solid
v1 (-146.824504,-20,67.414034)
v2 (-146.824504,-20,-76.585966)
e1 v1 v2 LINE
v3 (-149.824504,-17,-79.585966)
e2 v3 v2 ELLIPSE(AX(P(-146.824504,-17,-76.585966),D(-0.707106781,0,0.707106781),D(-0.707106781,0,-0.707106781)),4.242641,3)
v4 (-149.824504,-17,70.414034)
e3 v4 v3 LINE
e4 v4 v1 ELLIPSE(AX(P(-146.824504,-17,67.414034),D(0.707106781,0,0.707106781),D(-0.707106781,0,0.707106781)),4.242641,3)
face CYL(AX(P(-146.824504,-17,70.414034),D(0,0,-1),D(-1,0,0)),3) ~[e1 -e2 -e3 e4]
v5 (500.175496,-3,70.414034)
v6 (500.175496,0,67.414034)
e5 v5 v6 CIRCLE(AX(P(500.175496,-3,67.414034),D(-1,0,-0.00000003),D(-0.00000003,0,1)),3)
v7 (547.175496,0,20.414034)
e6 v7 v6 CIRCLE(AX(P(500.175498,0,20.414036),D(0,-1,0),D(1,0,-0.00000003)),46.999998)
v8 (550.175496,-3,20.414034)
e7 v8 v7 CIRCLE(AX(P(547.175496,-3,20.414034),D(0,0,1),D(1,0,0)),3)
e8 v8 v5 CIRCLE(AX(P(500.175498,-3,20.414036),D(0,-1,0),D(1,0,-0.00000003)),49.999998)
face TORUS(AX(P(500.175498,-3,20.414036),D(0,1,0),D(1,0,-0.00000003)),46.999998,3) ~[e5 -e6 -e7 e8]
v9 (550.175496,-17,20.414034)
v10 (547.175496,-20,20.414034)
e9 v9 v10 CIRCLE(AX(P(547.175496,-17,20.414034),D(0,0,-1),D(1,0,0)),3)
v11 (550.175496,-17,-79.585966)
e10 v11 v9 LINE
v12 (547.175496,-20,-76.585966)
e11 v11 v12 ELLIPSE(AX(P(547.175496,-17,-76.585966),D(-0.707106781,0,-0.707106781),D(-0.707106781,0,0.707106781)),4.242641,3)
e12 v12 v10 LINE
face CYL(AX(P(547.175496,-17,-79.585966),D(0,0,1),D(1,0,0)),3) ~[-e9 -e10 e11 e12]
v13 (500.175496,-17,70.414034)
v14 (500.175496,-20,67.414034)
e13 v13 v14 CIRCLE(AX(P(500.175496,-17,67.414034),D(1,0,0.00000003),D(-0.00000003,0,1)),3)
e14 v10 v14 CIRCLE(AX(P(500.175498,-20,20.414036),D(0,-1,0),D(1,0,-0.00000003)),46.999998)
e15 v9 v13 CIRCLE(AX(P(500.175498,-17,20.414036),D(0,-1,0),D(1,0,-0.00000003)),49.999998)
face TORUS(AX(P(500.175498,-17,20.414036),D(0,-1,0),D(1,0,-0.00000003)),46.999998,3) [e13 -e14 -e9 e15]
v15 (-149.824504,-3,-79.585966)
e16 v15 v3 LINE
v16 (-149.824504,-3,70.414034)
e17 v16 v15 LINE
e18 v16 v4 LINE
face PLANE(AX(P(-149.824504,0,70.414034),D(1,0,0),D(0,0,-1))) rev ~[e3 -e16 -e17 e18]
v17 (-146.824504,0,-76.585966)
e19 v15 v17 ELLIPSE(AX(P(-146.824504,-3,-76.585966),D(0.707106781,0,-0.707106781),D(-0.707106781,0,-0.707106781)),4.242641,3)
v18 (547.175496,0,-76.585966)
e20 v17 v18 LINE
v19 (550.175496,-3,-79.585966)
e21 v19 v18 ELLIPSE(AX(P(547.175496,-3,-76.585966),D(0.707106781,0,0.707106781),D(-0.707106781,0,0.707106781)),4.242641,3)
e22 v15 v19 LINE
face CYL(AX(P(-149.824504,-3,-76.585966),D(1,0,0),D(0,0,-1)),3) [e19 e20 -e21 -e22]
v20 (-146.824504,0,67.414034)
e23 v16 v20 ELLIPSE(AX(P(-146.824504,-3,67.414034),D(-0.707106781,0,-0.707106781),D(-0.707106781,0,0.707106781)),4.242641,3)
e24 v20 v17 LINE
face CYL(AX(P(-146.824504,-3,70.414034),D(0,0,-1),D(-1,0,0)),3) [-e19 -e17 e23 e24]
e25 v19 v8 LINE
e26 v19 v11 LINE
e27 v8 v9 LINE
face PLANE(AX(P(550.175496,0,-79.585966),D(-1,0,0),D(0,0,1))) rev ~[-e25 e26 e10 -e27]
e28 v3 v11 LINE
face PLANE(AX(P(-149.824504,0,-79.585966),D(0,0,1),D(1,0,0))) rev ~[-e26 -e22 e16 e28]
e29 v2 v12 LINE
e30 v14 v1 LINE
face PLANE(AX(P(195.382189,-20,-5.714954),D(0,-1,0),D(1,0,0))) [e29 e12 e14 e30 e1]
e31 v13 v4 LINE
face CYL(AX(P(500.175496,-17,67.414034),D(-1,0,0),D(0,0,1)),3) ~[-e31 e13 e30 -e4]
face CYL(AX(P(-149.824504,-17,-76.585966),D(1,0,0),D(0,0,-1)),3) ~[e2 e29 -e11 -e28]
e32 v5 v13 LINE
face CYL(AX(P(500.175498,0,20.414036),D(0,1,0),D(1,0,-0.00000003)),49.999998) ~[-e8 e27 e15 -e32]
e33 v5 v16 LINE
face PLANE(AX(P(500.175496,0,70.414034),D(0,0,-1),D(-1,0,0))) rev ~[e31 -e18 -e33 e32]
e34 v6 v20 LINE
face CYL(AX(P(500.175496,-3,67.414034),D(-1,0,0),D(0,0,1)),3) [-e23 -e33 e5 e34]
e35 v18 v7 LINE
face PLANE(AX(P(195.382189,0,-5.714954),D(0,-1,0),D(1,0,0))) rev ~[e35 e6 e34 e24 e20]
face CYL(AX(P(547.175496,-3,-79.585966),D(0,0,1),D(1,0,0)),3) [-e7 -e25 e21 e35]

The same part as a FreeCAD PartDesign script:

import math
import FreeCAD as App
import Part
import Sketcher


def edges_at(feature, points):
    """Names of the edges that pass closest to the given points."""
    edges = feature.Shape.Edges
    near = lambda p: min(range(len(edges)), key=lambda i: edges[i].distToShape(Part.Vertex(*p))[0])
    return sorted({f"Edge{near(p) + 1}" for p in points})

doc = App.newDocument("Part")
body = doc.addObject("PartDesign::Body", "Body")

sketch1 = doc.addObject("Sketcher::SketchObject", "Sketch")
body.addObject(sketch1)
sketch1.AttachmentSupport = (doc.XZ_Plane, [""])
sketch1.MapMode = "FlatFace"
sketch1.addGeometry([
    Part.LineSegment(App.Vector(500, 70, 0), App.Vector(-150, 70, 0)),
    Part.LineSegment(App.Vector(-150, 70, 0), App.Vector(-150, -80, 0)),
    Part.LineSegment(App.Vector(-150, -80, 0), App.Vector(550, -80, 0)),
    Part.LineSegment(App.Vector(550, -80, 0), App.Vector(550, 20, 0)),
    Part.ArcOfCircle(Part.Circle(App.Vector(500, 20, 0), App.Vector(0, 0, 1), 50), math.radians(0), math.radians(90)),
], False)
sketch1.addConstraint([
    Sketcher.Constraint("Coincident", 0, 2, 1, 1),
    Sketcher.Constraint("Coincident", 1, 2, 2, 1),
    Sketcher.Constraint("Coincident", 2, 2, 3, 1),
    Sketcher.Constraint("Tangent", 3, 2, 4, 1),
    Sketcher.Constraint("Tangent", 4, 2, 0, 1),
    Sketcher.Constraint("Horizontal", 0),
    Sketcher.Constraint("Vertical", 1),
    Sketcher.Constraint("Horizontal", 2),
    Sketcher.Constraint("Vertical", 3),
    Sketcher.Constraint("Radius", 4, 49.999998),
    Sketcher.Constraint("DistanceX", 0, 2, 0, 1, 650.0),
    Sketcher.Constraint("DistanceY", 1, 2, 1, 1, 150.0),
    Sketcher.Constraint("DistanceX", -1, 1, 4, 3, 500.175498),
    Sketcher.Constraint("DistanceY", -1, 1, 4, 3, 20.414036),
])
pad1 = doc.addObject("PartDesign::Pad", "Pad")
body.addObject(pad1)
pad1.Profile = sketch1
pad1.Length = 20
doc.recompute()

fillet = doc.addObject("PartDesign::Fillet", "Fillet")
body.addObject(fillet)
fillet.Base = (pad1, edges_at(pad1, [
    (175.175, 0, 70.414),
    (-149.825, 0, -4.586),
    (200.175, 0, -79.586),
    (550.175, 0, -29.586),
    (535.531, 0, 55.769),
    (175.175, -20, 70.414),
    (-149.825, -20, -4.586),
    (200.175, -20, -79.586),
    (550.175, -20, -29.586),
    (535.531, -20, 55.769),
]))
fillet.Radius = 3

doc.recompute()
